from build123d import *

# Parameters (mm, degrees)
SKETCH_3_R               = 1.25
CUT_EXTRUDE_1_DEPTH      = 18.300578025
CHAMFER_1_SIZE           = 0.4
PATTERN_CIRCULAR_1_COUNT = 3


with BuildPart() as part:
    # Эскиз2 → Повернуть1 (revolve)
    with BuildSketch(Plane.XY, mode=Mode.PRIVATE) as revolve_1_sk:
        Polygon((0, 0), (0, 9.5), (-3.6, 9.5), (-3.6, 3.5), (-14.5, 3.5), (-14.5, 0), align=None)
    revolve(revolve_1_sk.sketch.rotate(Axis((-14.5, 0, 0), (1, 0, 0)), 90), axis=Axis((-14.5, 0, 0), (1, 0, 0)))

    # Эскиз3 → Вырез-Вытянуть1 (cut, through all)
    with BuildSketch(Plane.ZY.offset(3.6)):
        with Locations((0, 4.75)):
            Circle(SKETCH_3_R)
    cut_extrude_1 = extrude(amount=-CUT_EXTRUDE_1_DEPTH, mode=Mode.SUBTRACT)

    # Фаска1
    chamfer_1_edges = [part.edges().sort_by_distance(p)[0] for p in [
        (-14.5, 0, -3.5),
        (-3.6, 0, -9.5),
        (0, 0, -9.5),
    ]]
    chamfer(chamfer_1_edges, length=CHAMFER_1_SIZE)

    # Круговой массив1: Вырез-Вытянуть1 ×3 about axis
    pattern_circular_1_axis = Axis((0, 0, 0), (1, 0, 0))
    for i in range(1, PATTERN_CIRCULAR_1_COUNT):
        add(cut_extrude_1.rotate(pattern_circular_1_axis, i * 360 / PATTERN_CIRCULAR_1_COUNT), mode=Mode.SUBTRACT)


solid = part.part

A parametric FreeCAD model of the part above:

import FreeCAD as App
import Part
import Sketcher
from FreeCAD import Vector
Q = App.Units.Quantity


def edges_at(feature, points):
    """Names of the edges that pass closest to the given points."""
    edges = feature.Shape.Edges
    near = lambda p: min(range(len(edges)), key=lambda i: edges[i].distToShape(Part.Vertex(*p))[0])
    return sorted({f"Edge{near(p) + 1}" for p in points})


def add_polygon(sketch, points):
    """Adds a closed chain of lines whose ends are joined by coincident constraints."""
    first, n = sketch.GeometryCount, len(points)
    for a, b in zip(points, points[1:] + points[:1]):
        sketch.addGeometry(Part.LineSegment(App.Vector(*a, 0), App.Vector(*b, 0)), False)
    for i in range(n):
        sketch.addConstraint(Sketcher.Constraint("Coincident", first + i, 2, first + (i + 1) % n, 1))

doc = App.newDocument("Part")
params = doc.addObject("Spreadsheet::Sheet", "Params")
for row, (alias, value) in enumerate([
    ("sketch1_height", "6 mm"),
    ("sketch1_width", "3.6 mm"),
    ("sketch1_width2", "10.9 mm"),
    ("sketch1_height2", "9.5 mm"),
    ("revolution_angle", "360 deg"),
    ("sketch2_diameter", "2.5 mm"),
    ("chamfer_size", "0.4 mm"),
], start=1):
    params.set(f"A{row}", alias)
    params.set(f"B{row}", "=" + value)
    params.setAlias(f"B{row}", alias)

body = doc.addObject("PartDesign::Body", "Body")

# Sketch on XY plane
sketch1 = doc.addObject("Sketcher::SketchObject", "Sketch")
body.addObject(sketch1)
sketch1.AttachmentSupport = (doc.XY_Plane, [""])
sketch1.MapMode = "FlatFace"
add_polygon(sketch1, [(0, 0), (0, 9.5), (-3.6, 9.5), (-3.6, 3.5), (-14.5, 3.5), (-14.5, 0)])  # lines 0-5
sketch1.addConstraint(Sketcher.Constraint("Vertical", 0))
sketch1.addConstraint(Sketcher.Constraint("Horizontal", 1))
sketch1.addConstraint(Sketcher.Constraint("Vertical", 2))
sketch1.addConstraint(Sketcher.Constraint("Horizontal", 3))
sketch1.addConstraint(Sketcher.Constraint("Vertical", 4))
sketch1.addConstraint(Sketcher.Constraint("Horizontal", 5))
sketch1.addConstraint(Sketcher.Constraint("Coincident", 5, 2, -1, 1))
sketch1.addConstraint(Sketcher.Constraint("DistanceY", 2, 2, 2, 1, Q("6 mm")))
sketch1.addConstraint(Sketcher.Constraint("DistanceX", 1, 2, 1, 1, Q("3.6 mm")))
sketch1.addConstraint(Sketcher.Constraint("DistanceX", 3, 2, 3, 1, Q("10.9 mm")))
sketch1.addConstraint(Sketcher.Constraint("DistanceY", 0, 1, 0, 2, Q("9.5 mm")))
sketch1.setExpression("Constraints[13]", "Params.sketch1_height")
sketch1.setExpression("Constraints[14]", "Params.sketch1_width")
sketch1.setExpression("Constraints[15]", "Params.sketch1_width2")
sketch1.setExpression("Constraints[16]", "Params.sketch1_height2")
revolution = doc.addObject("PartDesign::Revolution", "Revolution")
body.addObject(revolution)
revolution.Profile = sketch1
revolution.ReferenceAxis = (sketch1, ["H_Axis"])
revolution.setExpression("Angle", "Params.revolution_angle")

# Sketch on YZ plane
sketch2 = doc.addObject("Sketcher::SketchObject", "Sketch001")
body.addObject(sketch2)
sketch2.AttachmentSupport = (doc.YZ_Plane, [""])
sketch2.MapMode = "FlatFace"
sketch2.AttachmentOffset = App.Placement(Vector(0, 0, -3.6), App.Rotation())
sketch2.addGeometry(Part.Circle(Vector(4.75, 0, 0), Vector(0, 0, 1), 1.25), False)
sketch2.addConstraint(Sketcher.Constraint("PointOnObject", 0, 3, -1))
sketch2.addConstraint(Sketcher.Constraint("Diameter", 0, Q("2.5 mm")))
sketch2.addConstraint(Sketcher.Constraint("DistanceX", -1, 1, 0, 3, Q("4.75 mm")))
sketch2.setExpression("Constraints[1]", "Params.sketch2_diameter")
pocket1 = doc.addObject("PartDesign::Pocket", "Pocket")
body.addObject(pocket1)
pocket1.Profile = sketch2
pocket1.Type = "ThroughAll"
pocket1.Reversed = True
doc.recompute()

chamfer = doc.addObject("PartDesign::Chamfer", "Chamfer")
body.addObject(chamfer)
chamfer.Base = (pocket1, edges_at(pocket1, [(-14.5, 0, -3.5), (-3.6, 0, -9.5), (0, 0, -9.5)]))
chamfer.setExpression("Size", "Params.chamfer_size")
doc.recompute()

polarpattern = doc.addObject("PartDesign::PolarPattern", "PolarPattern")
body.addObject(polarpattern)
polarpattern.Originals = [pocket1]
polarpattern.Axis = (doc.X_Axis, [""])
polarpattern.Angle = 360
polarpattern.Occurrences = 3
body.Tip = polarpattern

doc.recompute()
